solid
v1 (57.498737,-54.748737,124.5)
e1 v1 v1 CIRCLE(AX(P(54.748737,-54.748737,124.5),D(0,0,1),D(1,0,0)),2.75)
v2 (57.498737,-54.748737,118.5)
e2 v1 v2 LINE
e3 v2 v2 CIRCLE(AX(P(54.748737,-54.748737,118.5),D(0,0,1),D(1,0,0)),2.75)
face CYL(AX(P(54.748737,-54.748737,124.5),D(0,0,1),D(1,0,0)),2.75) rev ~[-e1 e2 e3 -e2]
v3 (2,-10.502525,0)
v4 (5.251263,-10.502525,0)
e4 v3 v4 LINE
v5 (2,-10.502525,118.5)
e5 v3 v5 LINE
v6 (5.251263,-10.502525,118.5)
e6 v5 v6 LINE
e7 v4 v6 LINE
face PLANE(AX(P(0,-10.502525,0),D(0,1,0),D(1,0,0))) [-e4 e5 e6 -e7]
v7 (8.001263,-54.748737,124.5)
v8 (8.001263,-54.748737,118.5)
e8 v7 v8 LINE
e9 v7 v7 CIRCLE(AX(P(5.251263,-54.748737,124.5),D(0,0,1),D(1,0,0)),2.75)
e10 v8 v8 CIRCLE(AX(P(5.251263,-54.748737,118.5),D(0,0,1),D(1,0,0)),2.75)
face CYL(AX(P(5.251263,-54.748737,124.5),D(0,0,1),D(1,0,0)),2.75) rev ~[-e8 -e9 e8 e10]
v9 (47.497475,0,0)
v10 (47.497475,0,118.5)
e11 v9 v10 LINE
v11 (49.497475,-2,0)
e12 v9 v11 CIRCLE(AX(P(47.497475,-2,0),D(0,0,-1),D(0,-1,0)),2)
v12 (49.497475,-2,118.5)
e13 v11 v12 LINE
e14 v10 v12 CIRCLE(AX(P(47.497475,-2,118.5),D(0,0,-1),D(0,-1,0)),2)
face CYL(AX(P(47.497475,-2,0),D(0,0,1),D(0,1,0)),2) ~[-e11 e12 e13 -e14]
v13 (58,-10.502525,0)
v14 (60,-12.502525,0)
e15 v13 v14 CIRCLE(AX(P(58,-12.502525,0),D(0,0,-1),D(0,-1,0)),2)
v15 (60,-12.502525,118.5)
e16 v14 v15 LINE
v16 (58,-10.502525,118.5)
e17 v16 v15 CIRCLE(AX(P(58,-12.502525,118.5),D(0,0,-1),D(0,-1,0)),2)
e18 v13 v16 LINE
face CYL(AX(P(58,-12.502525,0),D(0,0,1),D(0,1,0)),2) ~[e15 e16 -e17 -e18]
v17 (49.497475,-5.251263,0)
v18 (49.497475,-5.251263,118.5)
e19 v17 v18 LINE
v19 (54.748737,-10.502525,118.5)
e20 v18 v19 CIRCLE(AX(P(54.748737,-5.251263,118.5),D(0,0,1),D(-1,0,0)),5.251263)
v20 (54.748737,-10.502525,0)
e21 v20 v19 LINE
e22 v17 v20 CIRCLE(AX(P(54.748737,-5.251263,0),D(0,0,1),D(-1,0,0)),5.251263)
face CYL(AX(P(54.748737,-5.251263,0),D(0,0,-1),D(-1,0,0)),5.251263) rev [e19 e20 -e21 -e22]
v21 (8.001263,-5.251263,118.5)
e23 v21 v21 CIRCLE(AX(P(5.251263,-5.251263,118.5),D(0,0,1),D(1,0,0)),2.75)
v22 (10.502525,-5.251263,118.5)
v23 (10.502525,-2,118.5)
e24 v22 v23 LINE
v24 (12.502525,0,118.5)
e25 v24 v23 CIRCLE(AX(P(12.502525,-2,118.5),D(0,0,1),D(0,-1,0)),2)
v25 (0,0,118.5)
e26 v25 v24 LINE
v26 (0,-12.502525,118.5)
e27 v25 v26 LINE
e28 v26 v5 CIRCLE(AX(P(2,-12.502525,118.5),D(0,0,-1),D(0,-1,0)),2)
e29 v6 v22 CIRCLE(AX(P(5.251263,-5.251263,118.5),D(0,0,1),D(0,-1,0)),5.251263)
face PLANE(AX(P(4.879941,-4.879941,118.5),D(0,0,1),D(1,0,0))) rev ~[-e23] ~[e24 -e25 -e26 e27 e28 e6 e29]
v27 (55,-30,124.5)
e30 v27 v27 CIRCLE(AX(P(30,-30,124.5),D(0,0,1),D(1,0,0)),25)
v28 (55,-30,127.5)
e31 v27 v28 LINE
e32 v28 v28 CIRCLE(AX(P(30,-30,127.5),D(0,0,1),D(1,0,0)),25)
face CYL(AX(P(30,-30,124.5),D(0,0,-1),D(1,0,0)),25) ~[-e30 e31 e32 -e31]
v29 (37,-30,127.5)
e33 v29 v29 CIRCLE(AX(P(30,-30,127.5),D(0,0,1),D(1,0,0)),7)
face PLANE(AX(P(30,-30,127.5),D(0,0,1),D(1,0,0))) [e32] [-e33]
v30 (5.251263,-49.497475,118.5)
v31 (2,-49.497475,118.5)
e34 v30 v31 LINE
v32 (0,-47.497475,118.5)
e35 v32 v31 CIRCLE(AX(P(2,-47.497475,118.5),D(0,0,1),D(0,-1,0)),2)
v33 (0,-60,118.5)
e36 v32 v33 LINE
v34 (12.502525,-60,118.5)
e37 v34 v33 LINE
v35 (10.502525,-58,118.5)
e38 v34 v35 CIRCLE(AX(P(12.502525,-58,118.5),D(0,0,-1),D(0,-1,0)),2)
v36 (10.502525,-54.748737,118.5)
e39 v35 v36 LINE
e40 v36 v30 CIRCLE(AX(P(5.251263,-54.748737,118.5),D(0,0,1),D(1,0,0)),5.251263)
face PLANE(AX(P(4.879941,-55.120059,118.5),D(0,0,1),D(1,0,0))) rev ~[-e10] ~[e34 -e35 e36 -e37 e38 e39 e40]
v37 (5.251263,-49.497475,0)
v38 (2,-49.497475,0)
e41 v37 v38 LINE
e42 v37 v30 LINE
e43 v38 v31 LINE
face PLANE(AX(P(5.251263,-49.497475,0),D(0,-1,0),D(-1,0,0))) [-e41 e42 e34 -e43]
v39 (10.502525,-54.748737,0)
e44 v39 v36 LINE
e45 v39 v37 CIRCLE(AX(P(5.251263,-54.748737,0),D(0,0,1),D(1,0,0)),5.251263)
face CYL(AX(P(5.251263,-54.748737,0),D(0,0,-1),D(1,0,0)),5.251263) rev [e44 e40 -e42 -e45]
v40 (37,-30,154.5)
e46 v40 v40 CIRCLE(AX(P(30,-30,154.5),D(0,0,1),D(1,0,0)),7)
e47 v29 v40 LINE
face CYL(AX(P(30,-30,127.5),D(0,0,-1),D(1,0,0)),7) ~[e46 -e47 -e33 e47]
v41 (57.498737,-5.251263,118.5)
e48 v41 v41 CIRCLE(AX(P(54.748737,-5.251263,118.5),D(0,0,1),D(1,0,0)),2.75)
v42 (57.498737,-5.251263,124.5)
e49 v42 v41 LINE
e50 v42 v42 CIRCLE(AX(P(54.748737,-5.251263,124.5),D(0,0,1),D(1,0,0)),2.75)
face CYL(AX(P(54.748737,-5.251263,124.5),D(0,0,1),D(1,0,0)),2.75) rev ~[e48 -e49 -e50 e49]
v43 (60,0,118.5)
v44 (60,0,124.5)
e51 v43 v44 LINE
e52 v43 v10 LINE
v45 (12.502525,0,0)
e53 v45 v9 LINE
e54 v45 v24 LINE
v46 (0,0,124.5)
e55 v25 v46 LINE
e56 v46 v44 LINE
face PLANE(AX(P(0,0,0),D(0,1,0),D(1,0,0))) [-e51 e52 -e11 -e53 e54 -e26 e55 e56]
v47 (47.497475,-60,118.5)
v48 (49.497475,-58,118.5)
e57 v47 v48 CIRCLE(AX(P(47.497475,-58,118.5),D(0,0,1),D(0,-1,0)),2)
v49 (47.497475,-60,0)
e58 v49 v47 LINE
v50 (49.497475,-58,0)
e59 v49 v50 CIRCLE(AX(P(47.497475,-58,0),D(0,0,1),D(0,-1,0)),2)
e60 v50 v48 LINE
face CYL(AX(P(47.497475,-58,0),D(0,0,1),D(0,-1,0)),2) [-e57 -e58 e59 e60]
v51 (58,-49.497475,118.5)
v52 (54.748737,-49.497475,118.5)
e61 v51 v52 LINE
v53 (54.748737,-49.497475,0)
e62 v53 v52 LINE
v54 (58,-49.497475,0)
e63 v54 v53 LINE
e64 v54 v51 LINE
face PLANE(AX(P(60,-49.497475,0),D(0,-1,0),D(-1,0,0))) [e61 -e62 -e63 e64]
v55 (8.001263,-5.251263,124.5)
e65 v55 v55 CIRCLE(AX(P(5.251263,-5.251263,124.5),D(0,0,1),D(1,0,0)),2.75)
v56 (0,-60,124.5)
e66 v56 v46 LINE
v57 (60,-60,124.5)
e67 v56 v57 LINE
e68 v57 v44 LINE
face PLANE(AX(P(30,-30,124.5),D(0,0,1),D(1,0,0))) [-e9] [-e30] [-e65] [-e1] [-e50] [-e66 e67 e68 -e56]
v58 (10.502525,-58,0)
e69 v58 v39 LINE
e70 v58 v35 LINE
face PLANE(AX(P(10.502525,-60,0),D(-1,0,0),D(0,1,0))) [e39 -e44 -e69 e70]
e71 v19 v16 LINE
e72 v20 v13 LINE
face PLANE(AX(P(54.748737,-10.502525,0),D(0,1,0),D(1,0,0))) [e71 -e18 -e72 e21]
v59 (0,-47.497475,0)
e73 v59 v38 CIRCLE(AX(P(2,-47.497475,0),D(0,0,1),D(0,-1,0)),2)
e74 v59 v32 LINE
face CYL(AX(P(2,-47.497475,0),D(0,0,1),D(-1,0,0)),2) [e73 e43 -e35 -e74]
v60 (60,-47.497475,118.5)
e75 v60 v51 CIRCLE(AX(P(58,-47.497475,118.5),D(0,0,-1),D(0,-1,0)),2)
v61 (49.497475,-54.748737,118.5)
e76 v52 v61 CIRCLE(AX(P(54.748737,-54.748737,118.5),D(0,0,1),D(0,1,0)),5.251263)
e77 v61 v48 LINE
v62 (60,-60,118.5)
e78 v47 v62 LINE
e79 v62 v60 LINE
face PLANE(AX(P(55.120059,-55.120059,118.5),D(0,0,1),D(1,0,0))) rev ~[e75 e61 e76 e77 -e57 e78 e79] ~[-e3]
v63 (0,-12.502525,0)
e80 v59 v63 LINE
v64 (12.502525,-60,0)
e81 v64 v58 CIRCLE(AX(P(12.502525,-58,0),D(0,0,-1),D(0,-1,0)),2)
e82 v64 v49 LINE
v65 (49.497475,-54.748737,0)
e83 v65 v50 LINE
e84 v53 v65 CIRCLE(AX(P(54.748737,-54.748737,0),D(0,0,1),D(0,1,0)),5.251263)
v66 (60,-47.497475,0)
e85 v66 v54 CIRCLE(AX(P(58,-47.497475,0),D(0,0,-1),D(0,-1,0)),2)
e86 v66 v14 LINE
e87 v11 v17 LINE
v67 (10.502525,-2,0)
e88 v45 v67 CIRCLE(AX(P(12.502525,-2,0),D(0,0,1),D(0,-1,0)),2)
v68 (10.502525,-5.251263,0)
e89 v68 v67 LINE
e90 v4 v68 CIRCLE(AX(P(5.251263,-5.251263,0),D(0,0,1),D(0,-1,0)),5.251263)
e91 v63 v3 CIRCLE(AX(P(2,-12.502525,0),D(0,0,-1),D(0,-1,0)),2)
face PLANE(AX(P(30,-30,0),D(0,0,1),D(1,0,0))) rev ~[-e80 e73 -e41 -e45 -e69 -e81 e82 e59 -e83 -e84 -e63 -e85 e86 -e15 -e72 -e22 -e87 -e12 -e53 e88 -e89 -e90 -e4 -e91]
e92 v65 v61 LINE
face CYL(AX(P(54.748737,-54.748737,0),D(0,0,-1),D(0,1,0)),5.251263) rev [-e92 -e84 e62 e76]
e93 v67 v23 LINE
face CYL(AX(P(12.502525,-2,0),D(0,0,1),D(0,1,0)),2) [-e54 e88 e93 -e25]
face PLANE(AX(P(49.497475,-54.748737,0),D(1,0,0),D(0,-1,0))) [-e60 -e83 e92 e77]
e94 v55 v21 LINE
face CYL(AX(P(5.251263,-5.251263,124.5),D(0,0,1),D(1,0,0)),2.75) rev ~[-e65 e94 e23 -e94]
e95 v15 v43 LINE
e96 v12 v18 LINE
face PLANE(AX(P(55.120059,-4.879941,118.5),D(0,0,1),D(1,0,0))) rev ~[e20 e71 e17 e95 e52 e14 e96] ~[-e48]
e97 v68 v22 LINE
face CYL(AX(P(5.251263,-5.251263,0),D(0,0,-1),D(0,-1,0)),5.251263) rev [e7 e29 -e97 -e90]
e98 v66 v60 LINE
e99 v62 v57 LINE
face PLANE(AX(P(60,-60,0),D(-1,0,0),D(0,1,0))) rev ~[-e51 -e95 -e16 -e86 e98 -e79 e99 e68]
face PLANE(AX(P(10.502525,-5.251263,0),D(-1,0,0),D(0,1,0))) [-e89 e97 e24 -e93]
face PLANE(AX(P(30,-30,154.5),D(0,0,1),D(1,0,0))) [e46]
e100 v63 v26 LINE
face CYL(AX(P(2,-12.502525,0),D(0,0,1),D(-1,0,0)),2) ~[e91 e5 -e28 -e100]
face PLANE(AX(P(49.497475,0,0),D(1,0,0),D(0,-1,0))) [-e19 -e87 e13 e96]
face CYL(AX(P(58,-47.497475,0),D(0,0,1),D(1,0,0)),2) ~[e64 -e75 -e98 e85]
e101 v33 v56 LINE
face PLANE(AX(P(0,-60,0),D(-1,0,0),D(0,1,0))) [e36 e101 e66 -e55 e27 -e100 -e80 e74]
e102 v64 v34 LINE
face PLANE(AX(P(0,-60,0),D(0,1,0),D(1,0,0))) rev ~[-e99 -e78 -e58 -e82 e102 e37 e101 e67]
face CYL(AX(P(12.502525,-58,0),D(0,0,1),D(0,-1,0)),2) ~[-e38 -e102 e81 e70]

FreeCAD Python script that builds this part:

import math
import FreeCAD as App
import Part
import Sketcher
from FreeCAD import Vector


def edges_at(feature, points):
    """Names of the edges that pass closest to the given points."""
    edges = feature.Shape.Edges
    near = lambda p: min(range(len(edges)), key=lambda i: edges[i].distToShape(Part.Vertex(*p))[0])
    return sorted({f"Edge{near(p) + 1}" for p in points})


def add_polygon(sketch, points):
    """Adds a closed chain of lines whose ends are joined by coincident constraints."""
    first, n = sketch.GeometryCount, len(points)
    for a, b in zip(points, points[1:] + points[:1]):
        sketch.addGeometry(Part.LineSegment(App.Vector(*a, 0), App.Vector(*b, 0)), False)
    for i in range(n):
        sketch.addConstraint(Sketcher.Constraint("Coincident", first + i, 2, first + (i + 1) % n, 1))

doc = App.newDocument("Part")
body = doc.addObject("PartDesign::Body", "Body")

# Sketch on XY plane
sketch1 = body.newObject("Sketcher::SketchObject", "Sketch")
sketch1.AttachmentSupport = (doc.getObject("XY_Plane"), [""])
sketch1.MapMode = "FlatFace"
add_polygon(sketch1, [(0, 0), (0, -60), (60, -60), (60, 0)])  # lines 0-3
sketch1.addConstraint(Sketcher.Constraint("Vertical", 0))
sketch1.addConstraint(Sketcher.Constraint("Horizontal", 1))
sketch1.addConstraint(Sketcher.Constraint("Vertical", 2))
sketch1.addConstraint(Sketcher.Constraint("Horizontal", 3))
sketch1.addConstraint(Sketcher.Constraint("Coincident", 3, 2, -1, 1))
sketch1.addConstraint(Sketcher.Constraint("Equal", 3, 0))
sketch1.addConstraint(Sketcher.Constraint("DistanceX", 1, 1, 1, 2, 60.0))
pad1 = body.newObject("PartDesign::Pad", "Pad")
pad1.Profile = sketch1
pad1.Length = 124.5

# Sketch on XY plane
sketch2 = body.newObject("Sketcher::SketchObject", "Sketch001")
sketch2.AttachmentSupport = (doc.getObject("XY_Plane"), [""])
sketch2.MapMode = "FlatFace"
sketch2.AttachmentOffset = App.Placement(Vector(0, 0, 124.5), App.Rotation())
sketch2.addGeometry(Part.Circle(Vector(30, -30, 0), Vector(0, 0, 1), 25), False)
sketch2.addConstraint(Sketcher.Constraint("Diameter", 0, 50.0))
sketch2.addConstraint(Sketcher.Constraint("DistanceX", -1, 1, 0, 3, 30.0))
sketch2.addConstraint(Sketcher.Constraint("DistanceY", 0, 3, -1, 1, 30.0))
pad2 = body.newObject("PartDesign::Pad", "Pad001")
pad2.Profile = sketch2
pad2.Length = 3

# Sketch on XY plane
sketch3 = body.newObject("Sketcher::SketchObject", "Sketch002")
sketch3.AttachmentSupport = (doc.getObject("XY_Plane"), [""])
sketch3.MapMode = "FlatFace"
sketch3.AttachmentOffset = App.Placement(Vector(0, 0, 127.5), App.Rotation())
sketch3.addGeometry(Part.Circle(Vector(30, -30, 0), Vector(0, 0, 1), 7), False)
sketch3.addConstraint(Sketcher.Constraint("Diameter", 0, 14.0))
sketch3.addConstraint(Sketcher.Constraint("DistanceX", -1, 1, 0, 3, 30.0))
sketch3.addConstraint(Sketcher.Constraint("DistanceY", 0, 3, -1, 1, 30.0))
pad3 = body.newObject("PartDesign::Pad", "Pad002")
pad3.Profile = sketch3
pad3.Length = 27

# Sketch on XY plane
sketch4 = body.newObject("Sketcher::SketchObject", "Sketch003")
sketch4.AttachmentSupport = (doc.getObject("XY_Plane"), [""])
sketch4.MapMode = "FlatFace"
sketch4.AttachmentOffset = App.Placement(Vector(0, 0, 124.5), App.Rotation())
sketch4.addGeometry(Part.Circle(Vector(54.7, -5.3, 0), Vector(0, 0, 1), 2.8), False)
sketch4.addGeometry(Part.Circle(Vector(54.7, -54.7, 0), Vector(0, 0, 1), 2.8), False)
sketch4.addGeometry(Part.Circle(Vector(5.3, -54.7, 0), Vector(0, 0, 1), 2.8), False)
sketch4.addGeometry(Part.Circle(Vector(5.3, -5.3, 0), Vector(0, 0, 1), 2.8), False)
sketch4.addConstraint(Sketcher.Constraint("Equal", 0, 1))
sketch4.addConstraint(Sketcher.Constraint("Equal", 1, 2))
sketch4.addConstraint(Sketcher.Constraint("Equal", 2, 3))
sketch4.addConstraint(Sketcher.Constraint("Horizontal", 1, 3, 2, 3))
sketch4.addConstraint(Sketcher.Constraint("Horizontal", 0, 3, 3, 3))
sketch4.addConstraint(Sketcher.Constraint("Vertical", 0, 3, 1, 3))
sketch4.addConstraint(Sketcher.Constraint("Vertical", 2, 3, 3, 3))
sketch4.addConstraint(Sketcher.Constraint("Diameter", 0, 5.5))
sketch4.addConstraint(Sketcher.Constraint("DistanceX", -1, 1, 0, 3, 54.748737))
sketch4.addConstraint(Sketcher.Constraint("DistanceY", 0, 3, -1, 1, 5.251263))
sketch4.addConstraint(Sketcher.Constraint("DistanceY", 1, 3, -1, 1, 54.748737))
sketch4.addConstraint(Sketcher.Constraint("DistanceX", -1, 1, 2, 3, 5.251263))
pocket1 = body.newObject("PartDesign::Pocket", "Pocket")
pocket1.Profile = sketch4
pocket1.Type = "ThroughAll"

# Sketch on XY plane
sketch5 = body.newObject("Sketcher::SketchObject", "Sketch004")
sketch5.AttachmentSupport = (doc.getObject("XY_Plane"), [""])
sketch5.MapMode = "FlatFace"
sketch5.addGeometry(Part.LineSegment(Vector(11, 0, 0), Vector(11, -5, 0)), False)
sketch5.addGeometry(Part.ArcOfCircle(Part.Circle(Vector(5, -5, 0), Vector(0, 0, 1), 5), math.radians(-90), math.radians(0)), False)
sketch5.addGeometry(Part.LineSegment(Vector(5, -11, 0), Vector(0, -11, 0)), False)
sketch5.addGeometry(Part.LineSegment(Vector(0, -11, 0), Vector(0, 0, 0)), False)
sketch5.addGeometry(Part.LineSegment(Vector(0, 0, 0), Vector(11, 0, 0)), False)
sketch5.addGeometry(Part.LineSegment(Vector(49, -60, 0), Vector(49, -55, 0)), False)
sketch5.addGeometry(Part.ArcOfCircle(Part.Circle(Vector(55, -55, 0), Vector(0, 0, 1), 5), math.radians(90), math.radians(180)), False)
sketch5.addGeometry(Part.LineSegment(Vector(55, -49, 0), Vector(60, -49, 0)), False)
sketch5.addGeometry(Part.LineSegment(Vector(60, -49, 0), Vector(60, -60, 0)), False)
sketch5.addGeometry(Part.LineSegment(Vector(60, -60, 0), Vector(49, -60, 0)), False)
sketch5.addGeometry(Part.LineSegment(Vector(49, 0, 0), Vector(60, 0, 0)), False)
sketch5.addGeometry(Part.LineSegment(Vector(60, 0, 0), Vector(60, -11, 0)), False)
sketch5.addGeometry(Part.LineSegment(Vector(60, -11, 0), Vector(55, -11, 0)), False)
sketch5.addGeometry(Part.ArcOfCircle(Part.Circle(Vector(55, -5, 0), Vector(0, 0, 1), 5), math.radians(180), math.radians(270)), False)
sketch5.addGeometry(Part.LineSegment(Vector(49, -5, 0), Vector(49, 0, 0)), False)
sketch5.addGeometry(Part.LineSegment(Vector(11, -60, 0), Vector(0, -60, 0)), False)
sketch5.addGeometry(Part.LineSegment(Vector(0, -60, 0), Vector(0, -49, 0)), False)
sketch5.addGeometry(Part.LineSegment(Vector(0, -49, 0), Vector(5, -49, 0)), False)
sketch5.addGeometry(Part.ArcOfCircle(Part.Circle(Vector(5, -55, 0), Vector(0, 0, 1), 5), math.radians(0), math.radians(90)), False)
sketch5.addGeometry(Part.LineSegment(Vector(11, -55, 0), Vector(11, -60, 0)), False)
sketch5.addConstraint(Sketcher.Constraint("Tangent", 0, 2, 1, 2))
sketch5.addConstraint(Sketcher.Constraint("Tangent", 1, 1, 2, 1))
sketch5.addConstraint(Sketcher.Constraint("Coincident", 2, 2, 3, 1))
sketch5.addConstraint(Sketcher.Constraint("Coincident", 3, 2, 4, 1))
sketch5.addConstraint(Sketcher.Constraint("Coincident", 4, 2, 0, 1))
sketch5.addConstraint(Sketcher.Constraint("Tangent", 5, 2, 6, 2))
sketch5.addConstraint(Sketcher.Constraint("Tangent", 6, 1, 7, 1))
sketch5.addConstraint(Sketcher.Constraint("Coincident", 7, 2, 8, 1))
sketch5.addConstraint(Sketcher.Constraint("Coincident", 8, 2, 9, 1))
sketch5.addConstraint(Sketcher.Constraint("Coincident", 9, 2, 5, 1))
sketch5.addConstraint(Sketcher.Constraint("Coincident", 10, 2, 11, 1))
sketch5.addConstraint(Sketcher.Constraint("Coincident", 11, 2, 12, 1))
sketch5.addConstraint(Sketcher.Constraint("Tangent", 12, 2, 13, 2))
sketch5.addConstraint(Sketcher.Constraint("Tangent", 13, 1, 14, 1))
sketch5.addConstraint(Sketcher.Constraint("Coincident", 14, 2, 10, 1))
sketch5.addConstraint(Sketcher.Constraint("Coincident", 15, 2, 16, 1))
sketch5.addConstraint(Sketcher.Constraint("Coincident", 16, 2, 17, 1))
sketch5.addConstraint(Sketcher.Constraint("Tangent", 17, 2, 18, 2))
sketch5.addConstraint(Sketcher.Constraint("Tangent", 18, 1, 19, 1))
sketch5.addConstraint(Sketcher.Constraint("Coincident", 19, 2, 15, 1))
sketch5.addConstraint(Sketcher.Constraint("Vertical", 0))
sketch5.addConstraint(Sketcher.Constraint("Horizontal", 2))
sketch5.addConstraint(Sketcher.Constraint("Vertical", 3))
sketch5.addConstraint(Sketcher.Constraint("Horizontal", 4))
sketch5.addConstraint(Sketcher.Constraint("Vertical", 5))
sketch5.addConstraint(Sketcher.Constraint("Horizontal", 7))
sketch5.addConstraint(Sketcher.Constraint("Vertical", 8))
sketch5.addConstraint(Sketcher.Constraint("Horizontal", 9))
sketch5.addConstraint(Sketcher.Constraint("Horizontal", 10))
sketch5.addConstraint(Sketcher.Constraint("Vertical", 11))
sketch5.addConstraint(Sketcher.Constraint("Horizontal", 12))
sketch5.addConstraint(Sketcher.Constraint("Vertical", 14))
sketch5.addConstraint(Sketcher.Constraint("Horizontal", 15))
sketch5.addConstraint(Sketcher.Constraint("Vertical", 16))
sketch5.addConstraint(Sketcher.Constraint("Horizontal", 17))
sketch5.addConstraint(Sketcher.Constraint("Vertical", 19))
sketch5.addConstraint(Sketcher.Constraint("Coincident", 3, 2, -1, 1))
sketch5.addConstraint(Sketcher.Constraint("Equal", 1, 6))
sketch5.addConstraint(Sketcher.Constraint("Equal", 6, 13))
sketch5.addConstraint(Sketcher.Constraint("Equal", 13, 18))
sketch5.addConstraint(Sketcher.Constraint("PointOnObject", 10, 2, -1))
sketch5.addConstraint(Sketcher.Constraint("PointOnObject", 15, 2, -2))
sketch5.addConstraint(Sketcher.Constraint("Horizontal", 1, 3, 13, 3))
sketch5.addConstraint(Sketcher.Constraint("Horizontal", 6, 3, 18, 3))
sketch5.addConstraint(Sketcher.Constraint("Horizontal", 9, 2, 15, 2))
sketch5.addConstraint(Sketcher.Constraint("Vertical", 6, 3, 13, 3))
sketch5.addConstraint(Sketcher.Constraint("Vertical", 1, 3, 18, 3))
sketch5.addConstraint(Sketcher.Constraint("Vertical", 8, 2, 10, 2))
sketch5.addConstraint(Sketcher.Constraint("Equal", 2, 7))
sketch5.addConstraint(Sketcher.Constraint("Equal", 17, 0))
sketch5.addConstraint(Sketcher.Constraint("Equal", 0, 5))
sketch5.addConstraint(Sketcher.Constraint("DistanceX", -1, 1, 7, 2, 60.0))
sketch5.addConstraint(Sketcher.Constraint("DistanceY", 8, 2, -1, 1, 60.0))
sketch5.addConstraint(Sketcher.Constraint("Radius", 1, 5.251263))
sketch5.addConstraint(Sketcher.Constraint("DistanceX", 2, 2, 2, 1, 5.251263))
pocket2 = body.newObject("PartDesign::Pocket", "Pocket001")
pocket2.Profile = sketch5
pocket2.Length = 118.5
pocket2.Reversed = True
doc.recompute()

fillet = body.newObject("PartDesign::Fillet", "Fillet")
fillet.Base = (pocket2, edges_at(pocket2, [
    (10.503, 0, 59.25),
    (0, -10.503, 59.25),
    (49.497, -60, 59.25),
    (60, -49.497, 59.25),
    (60, -10.503, 59.25),
    (49.497, 0, 59.25),
    (0, -49.497, 59.25),
    (10.503, -60, 59.25),
]))
fillet.Radius = 2

doc.recompute()
